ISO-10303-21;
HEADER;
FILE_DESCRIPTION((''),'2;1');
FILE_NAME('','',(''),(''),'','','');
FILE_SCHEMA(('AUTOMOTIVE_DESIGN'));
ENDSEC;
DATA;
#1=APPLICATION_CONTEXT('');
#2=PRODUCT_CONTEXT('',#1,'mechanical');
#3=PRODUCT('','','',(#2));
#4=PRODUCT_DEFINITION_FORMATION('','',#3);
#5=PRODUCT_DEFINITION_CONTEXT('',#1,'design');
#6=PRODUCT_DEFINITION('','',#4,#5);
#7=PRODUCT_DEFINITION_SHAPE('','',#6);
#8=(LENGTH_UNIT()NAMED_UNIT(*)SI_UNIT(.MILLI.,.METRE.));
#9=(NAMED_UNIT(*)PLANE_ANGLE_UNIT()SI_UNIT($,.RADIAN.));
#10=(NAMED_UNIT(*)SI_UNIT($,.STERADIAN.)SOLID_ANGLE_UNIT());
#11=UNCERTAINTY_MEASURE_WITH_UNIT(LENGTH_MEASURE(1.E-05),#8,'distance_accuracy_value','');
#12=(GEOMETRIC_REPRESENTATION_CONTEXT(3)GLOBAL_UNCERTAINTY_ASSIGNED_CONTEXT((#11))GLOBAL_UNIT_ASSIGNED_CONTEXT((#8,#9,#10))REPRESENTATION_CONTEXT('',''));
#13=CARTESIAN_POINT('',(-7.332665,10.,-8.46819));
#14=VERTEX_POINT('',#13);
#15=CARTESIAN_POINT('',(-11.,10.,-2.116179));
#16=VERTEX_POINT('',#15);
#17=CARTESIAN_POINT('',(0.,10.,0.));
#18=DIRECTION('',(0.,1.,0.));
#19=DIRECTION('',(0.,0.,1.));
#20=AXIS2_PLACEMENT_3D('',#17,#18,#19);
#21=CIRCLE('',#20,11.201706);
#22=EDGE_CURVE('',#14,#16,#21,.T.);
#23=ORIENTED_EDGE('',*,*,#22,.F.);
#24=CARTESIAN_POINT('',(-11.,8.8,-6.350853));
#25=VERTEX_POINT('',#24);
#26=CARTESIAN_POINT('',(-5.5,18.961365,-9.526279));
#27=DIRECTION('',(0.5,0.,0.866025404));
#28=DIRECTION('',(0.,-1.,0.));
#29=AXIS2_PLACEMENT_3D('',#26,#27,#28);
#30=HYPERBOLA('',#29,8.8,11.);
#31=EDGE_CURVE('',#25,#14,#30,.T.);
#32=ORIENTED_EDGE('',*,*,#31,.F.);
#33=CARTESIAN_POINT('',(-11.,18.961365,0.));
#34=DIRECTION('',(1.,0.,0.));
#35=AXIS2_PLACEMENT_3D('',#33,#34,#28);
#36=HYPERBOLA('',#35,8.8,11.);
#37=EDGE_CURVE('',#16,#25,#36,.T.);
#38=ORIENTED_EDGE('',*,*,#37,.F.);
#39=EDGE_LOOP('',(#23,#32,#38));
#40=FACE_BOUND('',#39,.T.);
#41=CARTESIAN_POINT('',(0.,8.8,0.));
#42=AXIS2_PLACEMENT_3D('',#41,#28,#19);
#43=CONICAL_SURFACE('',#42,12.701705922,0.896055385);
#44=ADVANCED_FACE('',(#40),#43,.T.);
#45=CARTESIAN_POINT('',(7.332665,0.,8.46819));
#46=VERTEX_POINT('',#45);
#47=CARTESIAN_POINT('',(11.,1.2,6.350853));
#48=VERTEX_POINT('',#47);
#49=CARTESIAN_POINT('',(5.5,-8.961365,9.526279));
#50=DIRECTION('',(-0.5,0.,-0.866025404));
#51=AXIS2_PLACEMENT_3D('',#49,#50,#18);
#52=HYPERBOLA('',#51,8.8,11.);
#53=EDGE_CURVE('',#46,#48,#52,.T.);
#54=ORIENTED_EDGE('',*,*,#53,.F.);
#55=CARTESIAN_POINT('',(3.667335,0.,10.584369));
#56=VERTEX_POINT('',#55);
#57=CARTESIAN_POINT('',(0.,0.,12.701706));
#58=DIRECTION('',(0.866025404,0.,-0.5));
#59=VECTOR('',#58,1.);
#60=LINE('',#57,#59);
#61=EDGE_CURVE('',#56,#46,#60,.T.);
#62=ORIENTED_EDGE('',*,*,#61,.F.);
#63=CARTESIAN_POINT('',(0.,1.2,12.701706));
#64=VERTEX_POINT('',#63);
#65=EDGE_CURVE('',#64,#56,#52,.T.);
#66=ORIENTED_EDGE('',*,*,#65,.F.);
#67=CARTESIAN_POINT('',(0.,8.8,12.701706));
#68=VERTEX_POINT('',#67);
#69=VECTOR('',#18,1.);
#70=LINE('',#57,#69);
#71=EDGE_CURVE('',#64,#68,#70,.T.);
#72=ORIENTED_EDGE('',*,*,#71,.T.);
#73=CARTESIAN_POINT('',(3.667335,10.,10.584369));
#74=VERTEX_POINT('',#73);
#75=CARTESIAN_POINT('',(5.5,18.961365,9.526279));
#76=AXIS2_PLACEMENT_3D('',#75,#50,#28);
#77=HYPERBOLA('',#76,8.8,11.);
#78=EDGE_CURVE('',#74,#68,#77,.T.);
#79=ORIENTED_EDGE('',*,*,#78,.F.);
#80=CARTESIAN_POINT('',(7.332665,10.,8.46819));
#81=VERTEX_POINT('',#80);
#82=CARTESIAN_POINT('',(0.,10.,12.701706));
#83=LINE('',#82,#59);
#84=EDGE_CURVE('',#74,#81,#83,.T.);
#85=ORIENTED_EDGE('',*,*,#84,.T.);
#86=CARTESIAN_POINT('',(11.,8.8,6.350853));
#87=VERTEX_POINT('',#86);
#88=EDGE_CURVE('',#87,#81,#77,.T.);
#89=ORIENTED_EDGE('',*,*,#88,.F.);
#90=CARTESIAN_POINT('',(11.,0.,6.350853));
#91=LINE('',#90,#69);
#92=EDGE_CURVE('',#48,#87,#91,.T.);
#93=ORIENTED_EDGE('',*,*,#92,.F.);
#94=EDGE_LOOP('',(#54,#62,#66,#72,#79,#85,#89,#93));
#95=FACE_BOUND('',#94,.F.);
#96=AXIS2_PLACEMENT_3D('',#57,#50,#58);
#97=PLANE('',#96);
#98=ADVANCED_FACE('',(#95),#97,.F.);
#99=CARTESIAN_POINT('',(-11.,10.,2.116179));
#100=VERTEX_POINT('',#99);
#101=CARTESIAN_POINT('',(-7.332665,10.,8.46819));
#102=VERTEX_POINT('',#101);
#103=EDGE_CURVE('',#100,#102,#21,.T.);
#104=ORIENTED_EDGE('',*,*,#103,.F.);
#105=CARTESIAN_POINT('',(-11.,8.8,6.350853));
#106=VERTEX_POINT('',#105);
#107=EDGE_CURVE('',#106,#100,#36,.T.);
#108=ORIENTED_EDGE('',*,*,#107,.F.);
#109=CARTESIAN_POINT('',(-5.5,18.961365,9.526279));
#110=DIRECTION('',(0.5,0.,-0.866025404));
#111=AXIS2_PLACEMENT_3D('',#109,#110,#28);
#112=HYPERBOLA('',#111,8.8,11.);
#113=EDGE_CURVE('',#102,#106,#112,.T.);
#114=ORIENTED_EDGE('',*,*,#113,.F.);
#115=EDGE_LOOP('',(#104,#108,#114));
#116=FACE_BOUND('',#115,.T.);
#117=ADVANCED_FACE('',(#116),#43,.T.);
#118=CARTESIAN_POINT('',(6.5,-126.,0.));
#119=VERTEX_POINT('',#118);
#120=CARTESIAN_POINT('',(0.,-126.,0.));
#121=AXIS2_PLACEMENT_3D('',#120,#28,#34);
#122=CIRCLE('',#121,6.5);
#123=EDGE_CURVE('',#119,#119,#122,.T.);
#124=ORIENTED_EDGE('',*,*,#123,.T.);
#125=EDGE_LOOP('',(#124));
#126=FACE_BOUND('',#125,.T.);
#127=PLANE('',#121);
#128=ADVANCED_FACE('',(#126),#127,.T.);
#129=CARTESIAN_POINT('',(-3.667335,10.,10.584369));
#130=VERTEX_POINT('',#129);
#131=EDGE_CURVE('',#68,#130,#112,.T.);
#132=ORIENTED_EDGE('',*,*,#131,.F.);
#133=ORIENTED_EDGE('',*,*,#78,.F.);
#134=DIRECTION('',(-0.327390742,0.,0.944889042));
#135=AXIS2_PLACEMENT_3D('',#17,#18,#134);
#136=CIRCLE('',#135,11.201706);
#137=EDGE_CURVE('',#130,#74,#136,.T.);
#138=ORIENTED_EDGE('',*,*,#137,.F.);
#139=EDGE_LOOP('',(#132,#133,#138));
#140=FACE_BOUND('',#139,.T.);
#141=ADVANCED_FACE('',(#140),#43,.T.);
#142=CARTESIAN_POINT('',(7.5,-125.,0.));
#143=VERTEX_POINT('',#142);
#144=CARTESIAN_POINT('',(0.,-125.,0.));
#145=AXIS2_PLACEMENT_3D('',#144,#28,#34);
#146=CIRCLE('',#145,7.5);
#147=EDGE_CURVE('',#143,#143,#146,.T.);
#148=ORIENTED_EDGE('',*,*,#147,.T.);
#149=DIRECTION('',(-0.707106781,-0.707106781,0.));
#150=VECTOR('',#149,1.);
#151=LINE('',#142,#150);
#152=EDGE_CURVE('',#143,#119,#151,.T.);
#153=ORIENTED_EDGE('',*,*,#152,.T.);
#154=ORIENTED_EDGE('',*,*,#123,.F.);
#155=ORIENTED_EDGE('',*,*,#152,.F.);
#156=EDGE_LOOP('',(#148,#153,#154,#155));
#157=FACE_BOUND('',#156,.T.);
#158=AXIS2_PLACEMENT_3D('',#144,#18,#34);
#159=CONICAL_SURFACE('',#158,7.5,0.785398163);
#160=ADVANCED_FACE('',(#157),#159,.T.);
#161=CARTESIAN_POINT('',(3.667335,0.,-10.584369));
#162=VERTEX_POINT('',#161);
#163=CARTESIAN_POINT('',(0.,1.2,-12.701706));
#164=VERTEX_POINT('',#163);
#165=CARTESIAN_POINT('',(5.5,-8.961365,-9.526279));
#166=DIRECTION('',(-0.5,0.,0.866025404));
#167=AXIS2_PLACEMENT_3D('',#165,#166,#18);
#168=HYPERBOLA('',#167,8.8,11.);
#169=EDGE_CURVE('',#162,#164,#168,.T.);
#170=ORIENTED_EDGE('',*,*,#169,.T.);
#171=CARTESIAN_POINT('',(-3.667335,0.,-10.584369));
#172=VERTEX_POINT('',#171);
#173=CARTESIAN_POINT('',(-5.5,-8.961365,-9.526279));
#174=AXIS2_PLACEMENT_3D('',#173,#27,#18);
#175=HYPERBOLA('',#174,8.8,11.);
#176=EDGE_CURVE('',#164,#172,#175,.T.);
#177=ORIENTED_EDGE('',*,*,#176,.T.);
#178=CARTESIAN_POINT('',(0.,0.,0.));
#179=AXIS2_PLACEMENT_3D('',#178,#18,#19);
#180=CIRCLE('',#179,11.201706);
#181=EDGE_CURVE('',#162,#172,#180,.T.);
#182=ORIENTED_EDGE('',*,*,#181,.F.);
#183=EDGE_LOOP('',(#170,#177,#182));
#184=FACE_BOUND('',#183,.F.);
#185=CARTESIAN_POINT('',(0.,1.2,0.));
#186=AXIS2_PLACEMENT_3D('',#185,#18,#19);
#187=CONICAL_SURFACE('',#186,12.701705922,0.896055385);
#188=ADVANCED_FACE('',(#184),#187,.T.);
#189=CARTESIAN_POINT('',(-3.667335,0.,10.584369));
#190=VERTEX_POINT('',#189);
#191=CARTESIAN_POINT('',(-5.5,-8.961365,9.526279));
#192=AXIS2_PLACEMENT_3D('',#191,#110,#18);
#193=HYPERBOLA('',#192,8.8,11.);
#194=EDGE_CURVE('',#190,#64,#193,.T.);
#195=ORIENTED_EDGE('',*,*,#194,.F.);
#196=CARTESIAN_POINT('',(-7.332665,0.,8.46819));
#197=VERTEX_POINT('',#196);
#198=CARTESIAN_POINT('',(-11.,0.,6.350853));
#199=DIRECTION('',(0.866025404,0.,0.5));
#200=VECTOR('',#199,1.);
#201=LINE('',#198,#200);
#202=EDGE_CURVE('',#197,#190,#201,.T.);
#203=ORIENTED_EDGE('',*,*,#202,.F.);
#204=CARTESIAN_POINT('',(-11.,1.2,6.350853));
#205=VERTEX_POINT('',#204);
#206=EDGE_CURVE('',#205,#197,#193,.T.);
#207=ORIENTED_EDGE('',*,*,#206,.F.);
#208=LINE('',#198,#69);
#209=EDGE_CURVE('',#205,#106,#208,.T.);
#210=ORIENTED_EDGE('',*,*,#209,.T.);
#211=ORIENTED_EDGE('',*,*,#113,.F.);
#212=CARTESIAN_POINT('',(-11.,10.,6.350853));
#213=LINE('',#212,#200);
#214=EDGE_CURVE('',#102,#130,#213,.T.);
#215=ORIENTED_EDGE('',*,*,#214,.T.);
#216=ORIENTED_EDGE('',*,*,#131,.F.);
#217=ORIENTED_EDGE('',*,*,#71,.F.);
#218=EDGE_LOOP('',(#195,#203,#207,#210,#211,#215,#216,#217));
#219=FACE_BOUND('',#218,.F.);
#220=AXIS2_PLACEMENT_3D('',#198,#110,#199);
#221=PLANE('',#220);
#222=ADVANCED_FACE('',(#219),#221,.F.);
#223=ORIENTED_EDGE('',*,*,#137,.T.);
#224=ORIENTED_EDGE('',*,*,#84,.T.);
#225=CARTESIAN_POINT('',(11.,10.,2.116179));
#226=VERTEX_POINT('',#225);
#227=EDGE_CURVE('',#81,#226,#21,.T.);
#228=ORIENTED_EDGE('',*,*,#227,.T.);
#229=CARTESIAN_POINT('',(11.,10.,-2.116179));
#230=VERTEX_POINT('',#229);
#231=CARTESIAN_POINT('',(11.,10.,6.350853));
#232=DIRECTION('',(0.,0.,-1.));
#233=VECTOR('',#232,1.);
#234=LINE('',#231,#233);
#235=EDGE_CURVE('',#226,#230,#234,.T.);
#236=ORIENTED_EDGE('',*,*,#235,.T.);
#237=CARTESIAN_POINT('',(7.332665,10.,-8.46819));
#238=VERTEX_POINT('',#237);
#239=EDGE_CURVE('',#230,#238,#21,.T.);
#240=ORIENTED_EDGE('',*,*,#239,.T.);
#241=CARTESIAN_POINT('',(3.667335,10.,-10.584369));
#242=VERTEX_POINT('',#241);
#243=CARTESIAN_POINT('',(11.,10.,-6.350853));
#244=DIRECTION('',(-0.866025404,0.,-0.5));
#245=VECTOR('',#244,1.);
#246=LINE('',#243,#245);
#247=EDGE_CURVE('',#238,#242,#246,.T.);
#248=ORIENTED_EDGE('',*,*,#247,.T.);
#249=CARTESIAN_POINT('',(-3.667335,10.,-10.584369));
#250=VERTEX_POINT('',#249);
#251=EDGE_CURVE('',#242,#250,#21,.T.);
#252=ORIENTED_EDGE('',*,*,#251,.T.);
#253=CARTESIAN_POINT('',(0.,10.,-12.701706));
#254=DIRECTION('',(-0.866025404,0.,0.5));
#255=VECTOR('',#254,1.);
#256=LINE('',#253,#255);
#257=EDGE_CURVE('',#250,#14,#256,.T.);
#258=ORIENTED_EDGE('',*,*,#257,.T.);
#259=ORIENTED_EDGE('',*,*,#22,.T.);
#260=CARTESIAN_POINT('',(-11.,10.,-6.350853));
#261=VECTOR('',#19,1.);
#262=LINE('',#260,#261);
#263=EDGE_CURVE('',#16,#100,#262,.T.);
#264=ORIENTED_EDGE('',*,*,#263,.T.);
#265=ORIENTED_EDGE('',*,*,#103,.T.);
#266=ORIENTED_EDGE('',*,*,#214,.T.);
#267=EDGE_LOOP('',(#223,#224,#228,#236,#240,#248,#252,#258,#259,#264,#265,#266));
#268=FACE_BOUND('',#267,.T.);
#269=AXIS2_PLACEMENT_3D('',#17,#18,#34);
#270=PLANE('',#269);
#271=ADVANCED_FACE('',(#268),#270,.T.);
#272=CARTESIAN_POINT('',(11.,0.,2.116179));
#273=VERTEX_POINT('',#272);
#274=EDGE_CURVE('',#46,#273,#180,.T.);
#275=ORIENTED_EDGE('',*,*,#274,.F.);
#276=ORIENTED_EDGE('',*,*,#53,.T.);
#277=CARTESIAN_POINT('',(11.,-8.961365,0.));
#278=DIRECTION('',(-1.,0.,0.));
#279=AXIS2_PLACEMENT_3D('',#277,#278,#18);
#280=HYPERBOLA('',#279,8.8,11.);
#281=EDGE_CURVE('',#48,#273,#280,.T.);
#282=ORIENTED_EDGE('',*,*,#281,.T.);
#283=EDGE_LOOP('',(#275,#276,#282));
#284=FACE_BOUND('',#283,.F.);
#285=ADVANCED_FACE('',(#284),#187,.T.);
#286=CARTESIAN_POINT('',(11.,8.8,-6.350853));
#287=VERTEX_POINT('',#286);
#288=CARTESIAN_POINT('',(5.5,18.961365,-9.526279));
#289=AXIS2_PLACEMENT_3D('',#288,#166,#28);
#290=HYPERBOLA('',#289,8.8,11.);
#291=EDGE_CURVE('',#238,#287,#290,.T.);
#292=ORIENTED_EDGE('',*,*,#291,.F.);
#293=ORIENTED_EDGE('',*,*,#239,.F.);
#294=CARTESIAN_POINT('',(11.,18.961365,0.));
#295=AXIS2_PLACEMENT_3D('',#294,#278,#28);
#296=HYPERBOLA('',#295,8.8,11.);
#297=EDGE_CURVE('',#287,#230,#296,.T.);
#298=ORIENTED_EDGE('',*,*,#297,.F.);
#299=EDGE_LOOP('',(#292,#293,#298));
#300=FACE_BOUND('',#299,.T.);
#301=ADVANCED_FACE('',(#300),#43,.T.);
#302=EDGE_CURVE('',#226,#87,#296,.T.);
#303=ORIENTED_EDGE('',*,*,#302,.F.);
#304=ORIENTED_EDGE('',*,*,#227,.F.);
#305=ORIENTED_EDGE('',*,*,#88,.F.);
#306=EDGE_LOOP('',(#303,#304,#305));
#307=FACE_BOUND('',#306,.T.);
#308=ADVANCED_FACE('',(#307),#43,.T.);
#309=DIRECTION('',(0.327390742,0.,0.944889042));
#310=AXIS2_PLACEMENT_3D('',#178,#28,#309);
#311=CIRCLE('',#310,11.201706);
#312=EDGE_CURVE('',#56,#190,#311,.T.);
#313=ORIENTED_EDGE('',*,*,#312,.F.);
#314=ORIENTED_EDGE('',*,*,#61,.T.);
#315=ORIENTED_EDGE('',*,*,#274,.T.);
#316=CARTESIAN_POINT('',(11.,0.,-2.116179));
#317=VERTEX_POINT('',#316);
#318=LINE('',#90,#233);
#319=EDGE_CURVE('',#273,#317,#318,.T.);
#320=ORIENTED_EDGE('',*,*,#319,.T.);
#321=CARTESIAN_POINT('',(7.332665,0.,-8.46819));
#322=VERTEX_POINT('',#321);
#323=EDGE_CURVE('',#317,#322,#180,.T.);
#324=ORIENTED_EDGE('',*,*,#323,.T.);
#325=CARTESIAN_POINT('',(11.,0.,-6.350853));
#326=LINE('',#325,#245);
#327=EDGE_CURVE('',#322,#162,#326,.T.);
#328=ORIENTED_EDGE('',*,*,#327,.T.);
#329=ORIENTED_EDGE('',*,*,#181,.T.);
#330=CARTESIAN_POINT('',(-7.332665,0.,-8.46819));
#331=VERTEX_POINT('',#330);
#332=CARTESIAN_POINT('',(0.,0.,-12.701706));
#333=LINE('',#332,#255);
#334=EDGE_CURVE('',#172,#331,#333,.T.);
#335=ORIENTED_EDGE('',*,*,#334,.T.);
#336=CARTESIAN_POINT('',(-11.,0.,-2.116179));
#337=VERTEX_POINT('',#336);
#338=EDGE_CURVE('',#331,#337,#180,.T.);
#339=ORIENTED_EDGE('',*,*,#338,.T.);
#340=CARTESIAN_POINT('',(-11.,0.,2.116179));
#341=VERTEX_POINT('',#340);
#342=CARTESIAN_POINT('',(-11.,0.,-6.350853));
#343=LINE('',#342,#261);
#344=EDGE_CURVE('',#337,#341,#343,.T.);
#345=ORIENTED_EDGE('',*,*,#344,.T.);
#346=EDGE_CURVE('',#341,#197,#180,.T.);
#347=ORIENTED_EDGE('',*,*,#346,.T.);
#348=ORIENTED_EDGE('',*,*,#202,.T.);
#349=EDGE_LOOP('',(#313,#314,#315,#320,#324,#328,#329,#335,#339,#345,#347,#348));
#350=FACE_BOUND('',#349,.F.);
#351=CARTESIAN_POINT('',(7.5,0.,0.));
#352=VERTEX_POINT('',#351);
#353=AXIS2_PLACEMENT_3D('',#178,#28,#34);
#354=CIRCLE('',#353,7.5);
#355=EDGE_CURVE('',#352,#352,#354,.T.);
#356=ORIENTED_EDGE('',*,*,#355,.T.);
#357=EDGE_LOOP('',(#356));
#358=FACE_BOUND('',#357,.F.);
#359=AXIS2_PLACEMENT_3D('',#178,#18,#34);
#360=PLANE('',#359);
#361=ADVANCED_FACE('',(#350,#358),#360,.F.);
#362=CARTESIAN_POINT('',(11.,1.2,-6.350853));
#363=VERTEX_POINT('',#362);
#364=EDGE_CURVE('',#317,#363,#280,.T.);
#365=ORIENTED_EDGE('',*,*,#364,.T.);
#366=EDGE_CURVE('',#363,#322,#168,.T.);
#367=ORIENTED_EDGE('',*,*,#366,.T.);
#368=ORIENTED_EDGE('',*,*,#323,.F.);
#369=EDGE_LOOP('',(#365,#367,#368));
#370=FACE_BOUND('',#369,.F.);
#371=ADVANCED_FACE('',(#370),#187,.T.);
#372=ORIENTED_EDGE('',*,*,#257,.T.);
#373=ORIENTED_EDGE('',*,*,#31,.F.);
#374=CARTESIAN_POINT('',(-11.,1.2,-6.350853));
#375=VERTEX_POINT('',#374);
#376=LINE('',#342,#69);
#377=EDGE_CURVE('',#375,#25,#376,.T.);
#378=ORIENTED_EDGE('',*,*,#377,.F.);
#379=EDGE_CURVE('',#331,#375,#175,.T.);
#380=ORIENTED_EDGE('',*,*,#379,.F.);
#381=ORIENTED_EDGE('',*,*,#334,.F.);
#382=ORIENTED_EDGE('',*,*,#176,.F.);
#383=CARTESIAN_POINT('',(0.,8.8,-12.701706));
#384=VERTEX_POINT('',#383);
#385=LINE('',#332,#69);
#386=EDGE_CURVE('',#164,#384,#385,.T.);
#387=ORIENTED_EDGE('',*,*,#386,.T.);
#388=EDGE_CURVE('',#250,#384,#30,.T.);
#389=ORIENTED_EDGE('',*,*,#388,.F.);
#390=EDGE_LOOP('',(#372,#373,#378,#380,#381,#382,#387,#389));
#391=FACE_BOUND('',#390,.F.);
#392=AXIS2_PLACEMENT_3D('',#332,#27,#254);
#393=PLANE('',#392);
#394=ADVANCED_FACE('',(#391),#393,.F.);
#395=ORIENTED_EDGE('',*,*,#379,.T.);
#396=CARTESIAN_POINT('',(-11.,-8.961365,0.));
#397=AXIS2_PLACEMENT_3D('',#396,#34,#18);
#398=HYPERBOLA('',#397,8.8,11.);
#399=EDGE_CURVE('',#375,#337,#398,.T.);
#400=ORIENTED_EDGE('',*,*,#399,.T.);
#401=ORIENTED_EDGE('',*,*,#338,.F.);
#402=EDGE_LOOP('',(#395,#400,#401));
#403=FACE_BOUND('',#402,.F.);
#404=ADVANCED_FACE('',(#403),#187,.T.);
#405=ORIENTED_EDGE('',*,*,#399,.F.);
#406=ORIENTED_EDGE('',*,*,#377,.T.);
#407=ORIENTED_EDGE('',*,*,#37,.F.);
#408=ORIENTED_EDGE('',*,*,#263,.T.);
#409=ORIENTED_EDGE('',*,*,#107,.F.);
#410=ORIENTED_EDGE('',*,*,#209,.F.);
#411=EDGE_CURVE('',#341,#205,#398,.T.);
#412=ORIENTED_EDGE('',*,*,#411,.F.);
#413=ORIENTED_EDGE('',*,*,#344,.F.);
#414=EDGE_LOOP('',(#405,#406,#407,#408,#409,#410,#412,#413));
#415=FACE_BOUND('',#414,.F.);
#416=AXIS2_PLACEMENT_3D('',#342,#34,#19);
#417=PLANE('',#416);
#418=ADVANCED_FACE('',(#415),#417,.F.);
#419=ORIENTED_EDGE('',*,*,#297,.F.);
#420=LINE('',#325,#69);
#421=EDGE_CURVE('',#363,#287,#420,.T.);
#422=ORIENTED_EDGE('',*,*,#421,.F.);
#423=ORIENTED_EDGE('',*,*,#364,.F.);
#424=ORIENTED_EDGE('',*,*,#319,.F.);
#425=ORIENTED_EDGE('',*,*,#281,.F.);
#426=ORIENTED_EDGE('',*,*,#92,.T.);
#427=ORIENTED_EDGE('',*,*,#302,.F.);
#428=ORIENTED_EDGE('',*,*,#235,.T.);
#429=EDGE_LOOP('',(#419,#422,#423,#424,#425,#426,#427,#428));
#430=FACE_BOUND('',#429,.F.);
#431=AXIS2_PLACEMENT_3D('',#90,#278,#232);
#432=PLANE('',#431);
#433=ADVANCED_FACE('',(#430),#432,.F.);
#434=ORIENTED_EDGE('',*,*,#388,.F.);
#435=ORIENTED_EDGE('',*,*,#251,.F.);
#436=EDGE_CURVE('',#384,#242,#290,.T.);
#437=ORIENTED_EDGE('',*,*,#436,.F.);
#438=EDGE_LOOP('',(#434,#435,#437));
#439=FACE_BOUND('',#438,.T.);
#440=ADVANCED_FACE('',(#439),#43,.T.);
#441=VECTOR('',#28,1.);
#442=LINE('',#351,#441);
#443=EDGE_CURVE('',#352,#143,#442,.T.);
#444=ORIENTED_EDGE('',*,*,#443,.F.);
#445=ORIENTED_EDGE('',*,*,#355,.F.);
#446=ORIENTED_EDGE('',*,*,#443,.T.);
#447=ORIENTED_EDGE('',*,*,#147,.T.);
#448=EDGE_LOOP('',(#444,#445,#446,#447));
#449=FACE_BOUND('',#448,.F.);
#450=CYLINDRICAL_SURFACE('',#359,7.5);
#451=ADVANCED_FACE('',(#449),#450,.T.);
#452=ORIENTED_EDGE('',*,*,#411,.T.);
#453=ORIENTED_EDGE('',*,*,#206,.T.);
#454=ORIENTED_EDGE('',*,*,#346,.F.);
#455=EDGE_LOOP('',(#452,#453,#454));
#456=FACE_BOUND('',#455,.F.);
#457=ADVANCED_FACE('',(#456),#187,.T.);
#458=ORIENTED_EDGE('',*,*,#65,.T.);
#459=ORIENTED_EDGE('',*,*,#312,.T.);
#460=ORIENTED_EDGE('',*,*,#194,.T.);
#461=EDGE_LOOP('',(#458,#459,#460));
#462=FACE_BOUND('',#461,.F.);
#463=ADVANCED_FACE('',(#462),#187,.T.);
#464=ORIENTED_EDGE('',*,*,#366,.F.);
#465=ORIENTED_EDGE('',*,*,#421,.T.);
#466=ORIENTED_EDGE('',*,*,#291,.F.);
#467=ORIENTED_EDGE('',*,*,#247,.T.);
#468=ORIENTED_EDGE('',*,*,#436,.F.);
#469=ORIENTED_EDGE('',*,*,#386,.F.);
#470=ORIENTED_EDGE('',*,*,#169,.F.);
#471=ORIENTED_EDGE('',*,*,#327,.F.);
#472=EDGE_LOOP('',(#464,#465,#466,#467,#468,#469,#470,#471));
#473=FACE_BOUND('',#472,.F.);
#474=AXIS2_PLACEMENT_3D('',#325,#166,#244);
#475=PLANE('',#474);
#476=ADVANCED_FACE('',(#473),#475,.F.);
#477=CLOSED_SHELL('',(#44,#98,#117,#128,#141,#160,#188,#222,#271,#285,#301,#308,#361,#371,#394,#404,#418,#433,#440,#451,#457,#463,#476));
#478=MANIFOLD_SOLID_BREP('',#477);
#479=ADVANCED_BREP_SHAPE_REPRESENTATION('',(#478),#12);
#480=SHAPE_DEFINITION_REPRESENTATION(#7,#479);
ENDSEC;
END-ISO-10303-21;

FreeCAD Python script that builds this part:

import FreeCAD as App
import Part
import Sketcher
from FreeCAD import Vector
Q = App.Units.Quantity


def edges_at(feature, points):
    """Names of the edges that pass closest to the given points."""
    edges = feature.Shape.Edges
    near = lambda p: min(range(len(edges)), key=lambda i: edges[i].distToShape(Part.Vertex(*p))[0])
    return sorted({f"Edge{near(p) + 1}" for p in points})


def add_polygon(sketch, points):
    """Adds a closed chain of lines whose ends are joined by coincident constraints."""
    first, n = sketch.GeometryCount, len(points)
    for a, b in zip(points, points[1:] + points[:1]):
        sketch.addGeometry(Part.LineSegment(App.Vector(*a, 0), App.Vector(*b, 0)), False)
    for i in range(n):
        sketch.addConstraint(Sketcher.Constraint("Coincident", first + i, 2, first + (i + 1) % n, 1))

doc = App.newDocument("Part")
body = doc.addObject("PartDesign::Body", "Body")

# Sketch on XZ plane
sketch1 = body.newObject("Sketcher::SketchObject", "Sketch")
sketch1.AttachmentSupport = (doc.getObject("XZ_Plane"), [""])
sketch1.MapMode = "FlatFace"
add_polygon(sketch1, [(0, -13), (-11, -6), (-11, 6), (0, 13), (11, 6), (11, -6)])  # lines 0-5
sketch1.addConstraint([
    Sketcher.Constraint("Vertical", 1),
    Sketcher.Constraint("Vertical", 4),
    Sketcher.Constraint("Symmetric", 0, 2, 3, 2, -1, 1),
    Sketcher.Constraint("Symmetric", 2, 2, 5, 2, -1, 1),
    Sketcher.Constraint("PointOnObject", 2, 2, -2),
    Sketcher.Constraint("Parallel", 2, 5),
    Sketcher.Constraint("Horizontal", 1, 2, 3, 2),
    Sketcher.Constraint("Angle", 0, Q("150 deg")),
    Sketcher.Constraint("DistanceX", 0, 2, -1, 1, 11.0),
    Sketcher.Constraint("DistanceY", 1, 1, 1, 2, 12.701706),
])
pad1 = body.newObject("PartDesign::Pad", "Pad")
pad1.Profile = sketch1
pad1.Length = 10
pad1.Reversed = True

# Sketch on XZ plane
sketch2 = body.newObject("Sketcher::SketchObject", "Sketch001")
sketch2.AttachmentSupport = (doc.getObject("XZ_Plane"), [""])
sketch2.MapMode = "FlatFace"
sketch2.addGeometry(Part.Circle(Vector(0, 0, 0), Vector(0, 0, 1), 8), False)
sketch2.addConstraint([
    Sketcher.Constraint("Coincident", 0, 3, -1, 1),
    Sketcher.Constraint("Diameter", 0, 15.0),
])
pad2 = body.newObject("PartDesign::Pad", "Pad001")
pad2.Profile = sketch2
pad2.Length = 126

# Sketch on YZ plane
sketch3 = body.newObject("Sketcher::SketchObject", "Sketch002")
sketch3.AttachmentSupport = (doc.getObject("YZ_Plane"), [""])
sketch3.MapMode = "FlatFace"
add_polygon(sketch3, [(10, 12.7), (8.8, 12.7), (10, 11.2)])  # lines 0-2
add_polygon(sketch3, [(1.2, 12.7), (0, 12.7), (0, 11.2)])  # lines 3-5
sketch3.addConstraint([
    Sketcher.Constraint("Horizontal", 0),
    Sketcher.Constraint("Vertical", 2),
    Sketcher.Constraint("Horizontal", 3),
    Sketcher.Constraint("Vertical", 4),
    Sketcher.Constraint("PointOnObject", 3, 2, -2),
    Sketcher.Constraint("Horizontal", 2, 2, 3, 2),
    Sketcher.Constraint("Horizontal", 1, 2, 4, 2),
    Sketcher.Constraint("Equal", 0, 3),
    Sketcher.Constraint("DistanceX", 0, 2, 0, 1, 1.2),
    Sketcher.Constraint("DistanceY", 2, 1, 2, 2, 1.5),
    Sketcher.Constraint("DistanceX", -1, 1, 1, 2, 10.0),
    Sketcher.Constraint("DistanceY", -1, 1, 0, 2, 12.701706),
])
groove = body.newObject("PartDesign::Groove", "Groove")
groove.Profile = sketch3
groove.ReferenceAxis = (sketch3, ["H_Axis"])
groove.Angle = 360
doc.recompute()

chamfer = body.newObject("PartDesign::Chamfer", "Chamfer")
chamfer.Base = (groove, edges_at(groove, [(-7.5, -126, 0)]))
chamfer.Size = 1

doc.recompute()
